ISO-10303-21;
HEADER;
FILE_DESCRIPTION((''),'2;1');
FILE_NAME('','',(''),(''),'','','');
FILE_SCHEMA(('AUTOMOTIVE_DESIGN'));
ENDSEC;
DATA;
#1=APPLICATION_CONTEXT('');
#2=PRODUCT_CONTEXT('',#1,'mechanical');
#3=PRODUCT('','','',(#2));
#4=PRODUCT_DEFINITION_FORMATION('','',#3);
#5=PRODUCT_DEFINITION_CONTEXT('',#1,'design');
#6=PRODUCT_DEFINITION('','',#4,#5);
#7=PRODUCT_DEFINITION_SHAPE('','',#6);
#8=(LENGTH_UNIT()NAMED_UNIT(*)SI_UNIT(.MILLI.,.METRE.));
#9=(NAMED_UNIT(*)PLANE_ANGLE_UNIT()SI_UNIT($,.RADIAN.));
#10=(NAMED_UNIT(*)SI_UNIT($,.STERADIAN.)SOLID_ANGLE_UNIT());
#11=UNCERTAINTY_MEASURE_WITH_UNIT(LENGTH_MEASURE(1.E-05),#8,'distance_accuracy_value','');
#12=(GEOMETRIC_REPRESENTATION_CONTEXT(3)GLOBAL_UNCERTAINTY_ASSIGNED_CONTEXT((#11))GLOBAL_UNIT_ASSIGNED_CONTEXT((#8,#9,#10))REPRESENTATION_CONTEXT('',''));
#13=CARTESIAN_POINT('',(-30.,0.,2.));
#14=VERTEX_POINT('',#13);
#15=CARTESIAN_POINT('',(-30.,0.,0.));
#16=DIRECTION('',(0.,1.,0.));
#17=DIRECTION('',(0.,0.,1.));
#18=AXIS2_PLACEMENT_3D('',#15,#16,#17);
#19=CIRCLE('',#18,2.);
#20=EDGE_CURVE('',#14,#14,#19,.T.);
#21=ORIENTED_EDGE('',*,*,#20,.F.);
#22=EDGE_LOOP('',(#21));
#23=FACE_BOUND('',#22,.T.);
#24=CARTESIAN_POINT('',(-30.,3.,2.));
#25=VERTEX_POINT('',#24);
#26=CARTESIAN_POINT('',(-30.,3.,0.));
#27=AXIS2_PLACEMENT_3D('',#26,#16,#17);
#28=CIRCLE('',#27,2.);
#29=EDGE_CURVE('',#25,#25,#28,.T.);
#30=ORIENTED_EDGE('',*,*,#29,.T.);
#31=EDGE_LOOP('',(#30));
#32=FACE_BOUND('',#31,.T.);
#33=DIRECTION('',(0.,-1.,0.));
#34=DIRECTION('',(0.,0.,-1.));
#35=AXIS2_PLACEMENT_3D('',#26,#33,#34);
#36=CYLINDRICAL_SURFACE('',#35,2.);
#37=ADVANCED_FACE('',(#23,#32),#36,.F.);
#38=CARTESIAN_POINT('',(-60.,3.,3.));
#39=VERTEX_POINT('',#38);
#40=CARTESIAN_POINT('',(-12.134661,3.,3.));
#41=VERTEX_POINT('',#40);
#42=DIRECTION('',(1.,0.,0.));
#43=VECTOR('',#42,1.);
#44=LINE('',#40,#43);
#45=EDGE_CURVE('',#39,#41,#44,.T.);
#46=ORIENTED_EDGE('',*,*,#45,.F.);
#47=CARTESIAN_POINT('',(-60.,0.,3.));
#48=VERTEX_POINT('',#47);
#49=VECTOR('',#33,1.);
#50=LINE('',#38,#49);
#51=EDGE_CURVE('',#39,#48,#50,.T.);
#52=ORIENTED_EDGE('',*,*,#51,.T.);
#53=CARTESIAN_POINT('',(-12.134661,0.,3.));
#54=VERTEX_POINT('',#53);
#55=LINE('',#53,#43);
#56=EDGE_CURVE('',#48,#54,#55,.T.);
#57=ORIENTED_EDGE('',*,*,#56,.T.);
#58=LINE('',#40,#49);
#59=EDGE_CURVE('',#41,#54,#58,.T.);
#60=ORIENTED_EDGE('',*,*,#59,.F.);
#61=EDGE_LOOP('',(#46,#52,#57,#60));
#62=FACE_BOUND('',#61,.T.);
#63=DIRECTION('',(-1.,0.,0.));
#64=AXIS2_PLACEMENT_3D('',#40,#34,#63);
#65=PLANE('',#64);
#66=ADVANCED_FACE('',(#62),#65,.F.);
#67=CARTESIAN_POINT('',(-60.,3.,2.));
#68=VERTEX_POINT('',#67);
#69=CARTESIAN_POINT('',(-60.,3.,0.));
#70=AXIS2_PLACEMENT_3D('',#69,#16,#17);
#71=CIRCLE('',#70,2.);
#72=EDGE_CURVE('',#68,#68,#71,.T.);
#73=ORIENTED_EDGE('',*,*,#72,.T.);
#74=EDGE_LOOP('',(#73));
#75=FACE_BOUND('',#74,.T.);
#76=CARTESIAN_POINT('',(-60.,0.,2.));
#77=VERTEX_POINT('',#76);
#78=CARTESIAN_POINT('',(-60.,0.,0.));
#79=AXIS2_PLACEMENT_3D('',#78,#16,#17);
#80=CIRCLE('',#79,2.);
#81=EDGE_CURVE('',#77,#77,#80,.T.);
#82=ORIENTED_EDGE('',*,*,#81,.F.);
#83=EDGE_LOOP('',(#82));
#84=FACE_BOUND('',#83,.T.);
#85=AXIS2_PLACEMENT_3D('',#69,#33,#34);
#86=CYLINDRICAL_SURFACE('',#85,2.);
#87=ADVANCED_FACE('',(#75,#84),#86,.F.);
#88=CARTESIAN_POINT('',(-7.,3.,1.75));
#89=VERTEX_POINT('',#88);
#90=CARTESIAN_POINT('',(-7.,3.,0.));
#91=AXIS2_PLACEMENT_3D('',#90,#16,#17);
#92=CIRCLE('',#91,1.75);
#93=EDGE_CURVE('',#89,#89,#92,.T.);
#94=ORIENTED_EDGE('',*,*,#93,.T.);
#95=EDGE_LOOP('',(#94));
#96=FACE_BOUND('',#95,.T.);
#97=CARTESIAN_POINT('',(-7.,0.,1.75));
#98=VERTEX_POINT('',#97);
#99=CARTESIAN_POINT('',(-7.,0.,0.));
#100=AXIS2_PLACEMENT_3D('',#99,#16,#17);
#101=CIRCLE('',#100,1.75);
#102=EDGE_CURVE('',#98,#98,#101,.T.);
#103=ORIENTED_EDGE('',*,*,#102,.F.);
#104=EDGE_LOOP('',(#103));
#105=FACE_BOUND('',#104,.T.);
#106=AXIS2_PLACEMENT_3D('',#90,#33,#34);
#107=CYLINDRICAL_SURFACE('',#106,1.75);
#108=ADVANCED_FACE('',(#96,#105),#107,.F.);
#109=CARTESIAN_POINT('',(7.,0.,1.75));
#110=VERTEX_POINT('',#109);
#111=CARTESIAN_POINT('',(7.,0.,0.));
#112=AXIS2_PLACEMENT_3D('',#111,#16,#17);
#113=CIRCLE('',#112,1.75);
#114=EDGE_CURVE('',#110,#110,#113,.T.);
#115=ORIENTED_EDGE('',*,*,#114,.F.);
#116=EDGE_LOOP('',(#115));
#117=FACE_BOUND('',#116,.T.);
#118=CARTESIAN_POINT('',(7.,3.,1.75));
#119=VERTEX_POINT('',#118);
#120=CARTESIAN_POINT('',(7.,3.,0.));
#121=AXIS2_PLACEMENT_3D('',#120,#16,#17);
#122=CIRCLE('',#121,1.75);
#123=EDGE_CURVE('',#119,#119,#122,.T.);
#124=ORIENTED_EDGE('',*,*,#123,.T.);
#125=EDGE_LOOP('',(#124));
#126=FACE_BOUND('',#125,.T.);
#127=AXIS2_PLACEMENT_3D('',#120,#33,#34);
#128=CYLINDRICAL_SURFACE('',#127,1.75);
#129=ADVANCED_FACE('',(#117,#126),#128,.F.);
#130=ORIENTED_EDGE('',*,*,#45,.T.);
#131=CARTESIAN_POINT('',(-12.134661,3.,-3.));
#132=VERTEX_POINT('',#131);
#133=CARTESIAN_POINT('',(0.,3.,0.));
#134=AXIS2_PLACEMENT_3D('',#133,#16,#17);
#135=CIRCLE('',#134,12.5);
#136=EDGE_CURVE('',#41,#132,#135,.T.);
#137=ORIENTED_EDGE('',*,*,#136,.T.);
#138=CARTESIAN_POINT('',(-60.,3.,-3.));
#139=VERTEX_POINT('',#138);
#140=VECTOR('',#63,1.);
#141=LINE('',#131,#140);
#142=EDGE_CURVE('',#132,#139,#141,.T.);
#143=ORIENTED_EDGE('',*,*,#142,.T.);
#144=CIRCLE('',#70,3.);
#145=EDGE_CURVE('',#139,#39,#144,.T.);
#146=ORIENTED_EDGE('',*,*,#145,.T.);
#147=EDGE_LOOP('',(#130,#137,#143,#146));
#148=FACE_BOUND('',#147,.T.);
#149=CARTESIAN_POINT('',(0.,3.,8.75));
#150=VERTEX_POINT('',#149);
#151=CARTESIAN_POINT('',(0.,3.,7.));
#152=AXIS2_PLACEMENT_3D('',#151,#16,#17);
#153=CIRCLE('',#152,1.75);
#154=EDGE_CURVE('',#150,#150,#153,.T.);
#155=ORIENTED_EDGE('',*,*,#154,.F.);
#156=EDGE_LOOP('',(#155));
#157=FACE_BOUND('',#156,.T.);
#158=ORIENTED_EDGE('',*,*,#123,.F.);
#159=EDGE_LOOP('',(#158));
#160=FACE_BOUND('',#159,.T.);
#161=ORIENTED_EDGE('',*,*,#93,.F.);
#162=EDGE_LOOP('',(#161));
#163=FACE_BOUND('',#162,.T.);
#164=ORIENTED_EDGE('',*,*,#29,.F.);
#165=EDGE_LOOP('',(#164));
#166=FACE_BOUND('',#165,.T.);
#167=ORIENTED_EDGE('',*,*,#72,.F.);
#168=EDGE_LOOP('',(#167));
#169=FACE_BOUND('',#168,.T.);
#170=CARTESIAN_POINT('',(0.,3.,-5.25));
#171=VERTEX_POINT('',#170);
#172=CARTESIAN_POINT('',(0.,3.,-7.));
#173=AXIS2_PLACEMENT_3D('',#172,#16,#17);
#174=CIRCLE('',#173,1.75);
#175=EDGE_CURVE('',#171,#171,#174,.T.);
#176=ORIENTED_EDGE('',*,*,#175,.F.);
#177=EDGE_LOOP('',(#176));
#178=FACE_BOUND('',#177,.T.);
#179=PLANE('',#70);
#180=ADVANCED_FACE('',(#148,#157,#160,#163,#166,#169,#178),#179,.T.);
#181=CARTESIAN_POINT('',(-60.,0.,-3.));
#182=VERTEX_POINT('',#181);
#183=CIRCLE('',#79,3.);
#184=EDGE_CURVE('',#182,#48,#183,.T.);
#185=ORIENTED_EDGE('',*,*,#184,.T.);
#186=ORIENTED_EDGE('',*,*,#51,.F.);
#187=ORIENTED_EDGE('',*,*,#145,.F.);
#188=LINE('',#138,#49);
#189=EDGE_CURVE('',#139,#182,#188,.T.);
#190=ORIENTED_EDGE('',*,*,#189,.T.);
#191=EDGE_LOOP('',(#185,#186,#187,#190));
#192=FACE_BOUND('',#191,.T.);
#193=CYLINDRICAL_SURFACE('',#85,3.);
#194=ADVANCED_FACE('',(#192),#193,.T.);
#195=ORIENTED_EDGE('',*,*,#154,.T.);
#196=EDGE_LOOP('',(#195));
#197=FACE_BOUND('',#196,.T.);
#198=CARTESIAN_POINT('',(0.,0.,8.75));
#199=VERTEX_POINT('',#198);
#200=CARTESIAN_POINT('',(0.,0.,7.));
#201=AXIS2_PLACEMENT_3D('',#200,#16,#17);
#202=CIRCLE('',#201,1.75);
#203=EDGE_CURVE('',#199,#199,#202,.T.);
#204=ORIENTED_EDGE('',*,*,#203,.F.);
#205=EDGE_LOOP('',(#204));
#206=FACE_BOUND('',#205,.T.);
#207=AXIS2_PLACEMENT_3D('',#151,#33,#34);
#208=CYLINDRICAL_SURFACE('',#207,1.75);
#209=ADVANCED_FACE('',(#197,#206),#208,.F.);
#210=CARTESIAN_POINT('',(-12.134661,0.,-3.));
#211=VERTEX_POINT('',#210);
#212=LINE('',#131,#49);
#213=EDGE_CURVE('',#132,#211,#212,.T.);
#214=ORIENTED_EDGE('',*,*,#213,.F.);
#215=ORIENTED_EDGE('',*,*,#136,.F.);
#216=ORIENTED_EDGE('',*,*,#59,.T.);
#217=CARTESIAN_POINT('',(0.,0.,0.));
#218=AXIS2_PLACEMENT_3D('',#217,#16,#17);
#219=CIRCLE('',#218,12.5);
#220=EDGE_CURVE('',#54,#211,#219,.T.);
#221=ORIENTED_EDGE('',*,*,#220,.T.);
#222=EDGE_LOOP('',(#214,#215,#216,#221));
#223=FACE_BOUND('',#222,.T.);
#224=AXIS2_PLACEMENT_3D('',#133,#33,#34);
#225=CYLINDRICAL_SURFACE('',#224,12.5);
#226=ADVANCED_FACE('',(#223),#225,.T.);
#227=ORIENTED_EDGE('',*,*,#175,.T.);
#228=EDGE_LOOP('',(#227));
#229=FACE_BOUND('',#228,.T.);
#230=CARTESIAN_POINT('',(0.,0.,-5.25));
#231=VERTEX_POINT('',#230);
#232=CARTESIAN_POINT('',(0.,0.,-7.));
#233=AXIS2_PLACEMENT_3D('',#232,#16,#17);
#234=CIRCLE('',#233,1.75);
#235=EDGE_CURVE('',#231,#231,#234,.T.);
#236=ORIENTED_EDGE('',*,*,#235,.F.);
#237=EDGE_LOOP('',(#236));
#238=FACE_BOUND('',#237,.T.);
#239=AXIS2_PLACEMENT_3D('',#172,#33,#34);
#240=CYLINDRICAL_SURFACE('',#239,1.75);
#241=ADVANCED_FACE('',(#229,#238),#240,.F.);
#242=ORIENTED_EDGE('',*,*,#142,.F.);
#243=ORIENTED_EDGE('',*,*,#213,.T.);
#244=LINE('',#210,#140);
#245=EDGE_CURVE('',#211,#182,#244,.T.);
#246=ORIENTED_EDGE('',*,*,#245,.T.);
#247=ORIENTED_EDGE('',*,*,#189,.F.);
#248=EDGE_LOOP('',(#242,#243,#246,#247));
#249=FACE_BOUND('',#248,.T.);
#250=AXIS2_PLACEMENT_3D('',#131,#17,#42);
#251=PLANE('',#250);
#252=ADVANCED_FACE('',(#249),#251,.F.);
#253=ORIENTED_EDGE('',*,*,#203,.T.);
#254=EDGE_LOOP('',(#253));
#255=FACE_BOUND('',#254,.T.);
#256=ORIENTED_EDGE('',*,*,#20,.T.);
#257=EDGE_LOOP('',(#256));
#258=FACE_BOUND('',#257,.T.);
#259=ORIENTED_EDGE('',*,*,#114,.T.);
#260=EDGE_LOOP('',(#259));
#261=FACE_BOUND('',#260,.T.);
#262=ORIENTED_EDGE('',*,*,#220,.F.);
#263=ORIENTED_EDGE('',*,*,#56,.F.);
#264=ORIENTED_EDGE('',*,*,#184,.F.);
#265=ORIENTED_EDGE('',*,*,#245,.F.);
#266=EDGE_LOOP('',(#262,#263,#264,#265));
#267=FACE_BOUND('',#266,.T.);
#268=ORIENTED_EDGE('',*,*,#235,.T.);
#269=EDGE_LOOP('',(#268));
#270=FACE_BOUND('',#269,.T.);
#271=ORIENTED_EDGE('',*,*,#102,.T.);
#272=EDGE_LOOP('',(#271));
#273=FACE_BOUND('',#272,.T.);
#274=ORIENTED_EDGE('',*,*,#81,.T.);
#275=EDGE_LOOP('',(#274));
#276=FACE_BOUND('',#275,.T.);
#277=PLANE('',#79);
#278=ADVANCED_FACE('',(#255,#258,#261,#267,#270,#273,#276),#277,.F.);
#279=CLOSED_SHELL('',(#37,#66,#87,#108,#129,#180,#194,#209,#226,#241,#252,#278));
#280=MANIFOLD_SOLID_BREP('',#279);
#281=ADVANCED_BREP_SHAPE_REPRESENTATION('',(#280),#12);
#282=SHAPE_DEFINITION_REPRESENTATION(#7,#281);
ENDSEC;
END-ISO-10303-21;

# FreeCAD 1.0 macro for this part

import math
import FreeCAD as App
import Part
import Sketcher

V = App.Vector
Q = App.Units.Quantity

doc = App.newDocument("Part")
body = doc.addObject("PartDesign::Body", "Body")

# Sketch on XZ plane
sketch1 = doc.addObject("Sketcher::SketchObject", "Sketch")
body.addObject(sketch1)
sketch1.AttachmentSupport = (doc.XZ_Plane, [""])
sketch1.MapMode = "FlatFace"
sketch1.addGeometry([
    Part.LineSegment(V(-60, 3, 0), V(-12.1, 3, 0)),  # 0
    Part.ArcOfCircle(Part.Circle(V(0, 0, 0), V(0, 0, 1), 12.5), math.radians(-166), math.radians(166)),  # 1
    Part.LineSegment(V(-12.1, -3, 0), V(-60, -3, 0)),  # 2
    Part.ArcOfCircle(Part.Circle(V(-60, 0, 0), V(0, 0, 1), 3), math.radians(90), math.radians(270)),  # 3
    Part.Circle(V(0, 7, 0), V(0, 0, 1), 1.8),  # 4
    Part.Circle(V(7, 0, 0), V(0, 0, 1), 1.8),  # 5
    Part.Circle(V(-7, 0, 0), V(0, 0, 1), 1.8),  # 6
    Part.Circle(V(0, -7, 0), V(0, 0, 1), 1.8),  # 7
    Part.Circle(V(-30, 0, 0), V(0, 0, 1), 2),  # 8
    Part.Circle(V(-60, 0, 0), V(0, 0, 1), 2),  # 9
], False)
sketch1.addConstraint([
    Sketcher.Constraint("Coincident", 0, 2, 1, 2),
    Sketcher.Constraint("Coincident", 1, 1, 2, 1),
    Sketcher.Constraint("Tangent", 2, 2, 3, 2),
    Sketcher.Constraint("Tangent", 3, 1, 0, 1),
    Sketcher.Constraint("Horizontal", 0),
    Sketcher.Constraint("Horizontal", 2),
    Sketcher.Constraint("Coincident", 1, 3, -1, 1),
    Sketcher.Constraint("Coincident", 9, 3, 3, 3),
    Sketcher.Constraint("Equal", 4, 5),
    Sketcher.Constraint("Equal", 5, 6),
    Sketcher.Constraint("Equal", 6, 7),
    Sketcher.Constraint("Equal", 8, 9),
    Sketcher.Constraint("Symmetric", 5, 3, 6, 3, -1, 1),
    Sketcher.Constraint("Symmetric", 4, 3, 7, 3, -1, 1),
    Sketcher.Constraint("PointOnObject", 3, 3, -1),
    Sketcher.Constraint("PointOnObject", 4, 3, -2),
    Sketcher.Constraint("PointOnObject", 5, 3, -1),
    Sketcher.Constraint("PointOnObject", 8, 3, -1),
    Sketcher.Constraint("Diameter", 8, Q("4 mm")),
    Sketcher.Constraint("Radius", 3, Q("3 mm")),
    Sketcher.Constraint("Diameter", 4, Q("3.5 mm")),
    Sketcher.Constraint("Radius", 1, Q("12.5 mm")),
    Sketcher.Constraint("DistanceX", 3, 3, -1, 1, Q("60 mm")),
    Sketcher.Constraint("DistanceY", -1, 1, 4, 3, Q("7 mm")),
    Sketcher.Constraint("DistanceX", -1, 1, 5, 3, Q("7 mm")),
    Sketcher.Constraint("DistanceX", 8, 3, -1, 1, Q("30 mm")),
])
pad1 = doc.addObject("PartDesign::Pad", "Pad")
body.addObject(pad1)
pad1.Profile = sketch1
pad1.Length = 3
pad1.Reversed = True

doc.recompute()
